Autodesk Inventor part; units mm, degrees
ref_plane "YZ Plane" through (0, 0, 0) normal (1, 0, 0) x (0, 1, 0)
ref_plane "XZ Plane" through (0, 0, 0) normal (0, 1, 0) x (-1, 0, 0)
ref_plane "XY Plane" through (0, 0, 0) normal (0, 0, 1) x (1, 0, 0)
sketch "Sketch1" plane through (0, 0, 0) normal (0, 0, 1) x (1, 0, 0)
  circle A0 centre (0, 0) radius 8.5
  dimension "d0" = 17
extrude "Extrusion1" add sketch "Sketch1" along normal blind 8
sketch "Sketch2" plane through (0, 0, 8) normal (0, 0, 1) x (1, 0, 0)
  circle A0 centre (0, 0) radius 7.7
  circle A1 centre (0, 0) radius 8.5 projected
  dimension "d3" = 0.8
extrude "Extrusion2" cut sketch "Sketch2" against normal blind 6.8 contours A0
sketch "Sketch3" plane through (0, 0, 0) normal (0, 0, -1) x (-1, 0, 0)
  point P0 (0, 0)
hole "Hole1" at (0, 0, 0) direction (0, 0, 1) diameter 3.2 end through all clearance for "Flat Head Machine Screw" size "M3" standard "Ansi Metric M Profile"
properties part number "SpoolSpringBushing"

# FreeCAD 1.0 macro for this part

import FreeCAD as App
import Part
import Sketcher

doc = App.newDocument("Part")
body = doc.addObject("PartDesign::Body", "Body")

# Sketch on XY plane
sketch1 = body.newObject("Sketcher::SketchObject", "Sketch")
sketch1.AttachmentSupport = (doc.getObject("XY_Plane"), [""])
sketch1.MapMode = "FlatFace"
sketch1.addGeometry(Part.Circle(App.Vector(0, 0, 0), App.Vector(0, 0, 1), 8), False)
sketch1.addConstraint([
    Sketcher.Constraint("Coincident", 0, 3, -1, 1),
    Sketcher.Constraint("Diameter", 0, 17.0),
])
pad1 = body.newObject("PartDesign::Pad", "Pad")
pad1.Profile = sketch1
pad1.Length = 8

# Sketch on XY plane
sketch2 = body.newObject("Sketcher::SketchObject", "Sketch001")
sketch2.AttachmentSupport = (doc.getObject("XY_Plane"), [""])
sketch2.MapMode = "FlatFace"
sketch2.AttachmentOffset = App.Placement(App.Vector(0, 0, 8), App.Rotation())
sketch2.addGeometry(Part.Circle(App.Vector(0, 0, 0), App.Vector(0, 0, 1), 8), False)
sketch2.addConstraint([
    Sketcher.Constraint("Coincident", 0, 3, -1, 1),
    Sketcher.Constraint("Diameter", 0, 15.4),
])
pocket1 = body.newObject("PartDesign::Pocket", "Pocket")
pocket1.Profile = sketch2
pocket1.Length = 6.8

# Sketch on XY plane
sketch3 = body.newObject("Sketcher::SketchObject", "Sketch002")
sketch3.AttachmentSupport = (doc.getObject("XY_Plane"), [""])
sketch3.MapMode = "FlatFace"
sketch3.addGeometry(Part.Circle(App.Vector(0, 0, 0), App.Vector(0, 0, 1), 1.6), False)
sketch3.addConstraint([
    Sketcher.Constraint("Coincident", 0, 3, -1, 1),
    Sketcher.Constraint("Diameter", 0, 3.2),
])
doc.recompute()
hole = body.newObject("PartDesign::Hole", "Hole")
hole.Profile = sketch3
hole.ThreadType = "None"
hole.Diameter = 3.2
hole.DepthType = "ThroughAll"
hole.Reversed = True

doc.recompute()
